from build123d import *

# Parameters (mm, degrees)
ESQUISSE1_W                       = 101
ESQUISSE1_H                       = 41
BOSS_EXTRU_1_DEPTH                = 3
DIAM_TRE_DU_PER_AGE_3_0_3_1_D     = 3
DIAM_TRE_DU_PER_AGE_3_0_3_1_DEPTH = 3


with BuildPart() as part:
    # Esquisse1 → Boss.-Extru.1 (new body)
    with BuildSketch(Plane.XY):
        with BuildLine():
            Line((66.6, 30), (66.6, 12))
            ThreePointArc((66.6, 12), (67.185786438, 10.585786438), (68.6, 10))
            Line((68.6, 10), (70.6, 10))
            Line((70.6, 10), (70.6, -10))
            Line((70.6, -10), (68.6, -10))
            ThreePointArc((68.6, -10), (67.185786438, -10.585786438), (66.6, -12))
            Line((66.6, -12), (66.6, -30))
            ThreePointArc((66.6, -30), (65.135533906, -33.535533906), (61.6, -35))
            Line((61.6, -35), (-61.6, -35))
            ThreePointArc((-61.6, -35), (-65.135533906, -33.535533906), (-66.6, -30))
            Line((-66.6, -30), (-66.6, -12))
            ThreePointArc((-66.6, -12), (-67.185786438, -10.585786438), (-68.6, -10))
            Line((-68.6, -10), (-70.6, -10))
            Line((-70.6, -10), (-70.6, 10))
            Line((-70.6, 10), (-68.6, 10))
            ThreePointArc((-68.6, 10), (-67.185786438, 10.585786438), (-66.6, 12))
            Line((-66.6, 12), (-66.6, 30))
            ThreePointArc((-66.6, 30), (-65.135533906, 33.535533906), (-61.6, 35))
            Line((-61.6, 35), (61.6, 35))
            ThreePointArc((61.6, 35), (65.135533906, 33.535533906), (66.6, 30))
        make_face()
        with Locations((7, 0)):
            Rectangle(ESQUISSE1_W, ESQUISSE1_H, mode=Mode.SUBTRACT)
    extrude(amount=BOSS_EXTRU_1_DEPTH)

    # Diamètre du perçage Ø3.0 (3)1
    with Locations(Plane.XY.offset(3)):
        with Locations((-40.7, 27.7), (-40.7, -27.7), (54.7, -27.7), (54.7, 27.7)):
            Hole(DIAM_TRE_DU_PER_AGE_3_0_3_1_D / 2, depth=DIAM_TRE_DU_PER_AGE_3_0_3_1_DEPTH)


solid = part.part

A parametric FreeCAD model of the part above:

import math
import FreeCAD as App
import Part
import Sketcher
from FreeCAD import Vector

doc = App.newDocument("Part")
body = doc.addObject("PartDesign::Body", "Body")

sketch1 = doc.addObject("Sketcher::SketchObject", "Sketch")
body.addObject(sketch1)
sketch1.AttachmentSupport = (doc.XY_Plane, [""])
sketch1.MapMode = "FlatFace"
sketch1.addGeometry([
    Part.LineSegment(Vector(66.6, 12, 0), Vector(66.6, 30, 0)),
    Part.ArcOfCircle(Part.Circle(Vector(61.6, 30, 0), Vector(0, 0, 1), 5), math.radians(0), math.radians(90)),
    Part.LineSegment(Vector(61.6, 35, 0), Vector(-61.6, 35, 0)),
    Part.ArcOfCircle(Part.Circle(Vector(-61.6, 30, 0), Vector(0, 0, 1), 5), math.radians(90), math.radians(180)),
    Part.LineSegment(Vector(-66.6, 30, 0), Vector(-66.6, 12, 0)),
    Part.ArcOfCircle(Part.Circle(Vector(-68.6, 12, 0), Vector(0, 0, 1), 2), math.radians(-90), math.radians(0)),
    Part.LineSegment(Vector(-68.6, 10, 0), Vector(-70.6, 10, 0)),
    Part.LineSegment(Vector(-70.6, 10, 0), Vector(-70.6, -10, 0)),
    Part.LineSegment(Vector(-70.6, -10, 0), Vector(-68.6, -10, 0)),
    Part.ArcOfCircle(Part.Circle(Vector(-68.6, -12, 0), Vector(0, 0, 1), 2), math.radians(0), math.radians(90)),
    Part.LineSegment(Vector(-66.6, -12, 0), Vector(-66.6, -30, 0)),
    Part.ArcOfCircle(Part.Circle(Vector(-61.6, -30, 0), Vector(0, 0, 1), 5), math.radians(180), math.radians(270)),
    Part.LineSegment(Vector(-61.6, -35, 0), Vector(61.6, -35, 0)),
    Part.ArcOfCircle(Part.Circle(Vector(61.6, -30, 0), Vector(0, 0, 1), 5), math.radians(-90), math.radians(0)),
    Part.LineSegment(Vector(66.6, -30, 0), Vector(66.6, -12, 0)),
    Part.ArcOfCircle(Part.Circle(Vector(68.6, -12, 0), Vector(0, 0, 1), 2), math.radians(90), math.radians(180)),
    Part.LineSegment(Vector(68.6, -10, 0), Vector(70.6, -10, 0)),
    Part.LineSegment(Vector(70.6, -10, 0), Vector(70.6, 10, 0)),
    Part.LineSegment(Vector(70.6, 10, 0), Vector(68.6, 10, 0)),
    Part.ArcOfCircle(Part.Circle(Vector(68.6, 12, 0), Vector(0, 0, 1), 2), math.radians(-180), math.radians(-90)),
    Part.LineSegment(Vector(-43.5, -20.5, 0), Vector(-43.5, 20.5, 0)),
    Part.LineSegment(Vector(-43.5, 20.5, 0), Vector(57.5, 20.5, 0)),
    Part.LineSegment(Vector(57.5, 20.5, 0), Vector(57.5, -20.5, 0)),
    Part.LineSegment(Vector(57.5, -20.5, 0), Vector(-43.5, -20.5, 0)),
], False)
sketch1.addConstraint([
    Sketcher.Constraint("Tangent", 0, 2, 1, 1),
    Sketcher.Constraint("Tangent", 1, 2, 2, 1),
    Sketcher.Constraint("Tangent", 2, 2, 3, 1),
    Sketcher.Constraint("Tangent", 3, 2, 4, 1),
    Sketcher.Constraint("Tangent", 4, 2, 5, 2),
    Sketcher.Constraint("Tangent", 5, 1, 6, 1),
    Sketcher.Constraint("Coincident", 6, 2, 7, 1),
    Sketcher.Constraint("Coincident", 7, 2, 8, 1),
    Sketcher.Constraint("Tangent", 8, 2, 9, 2),
    Sketcher.Constraint("Tangent", 9, 1, 10, 1),
    Sketcher.Constraint("Tangent", 10, 2, 11, 1),
    Sketcher.Constraint("Tangent", 11, 2, 12, 1),
    Sketcher.Constraint("Tangent", 12, 2, 13, 1),
    Sketcher.Constraint("Tangent", 13, 2, 14, 1),
    Sketcher.Constraint("Tangent", 14, 2, 15, 2),
    Sketcher.Constraint("Tangent", 15, 1, 16, 1),
    Sketcher.Constraint("Coincident", 16, 2, 17, 1),
    Sketcher.Constraint("Coincident", 17, 2, 18, 1),
    Sketcher.Constraint("Tangent", 18, 2, 19, 2),
    Sketcher.Constraint("Tangent", 19, 1, 0, 1),
    Sketcher.Constraint("Coincident", 20, 2, 21, 1),
    Sketcher.Constraint("Coincident", 21, 2, 22, 1),
    Sketcher.Constraint("Coincident", 22, 2, 23, 1),
    Sketcher.Constraint("Coincident", 23, 2, 20, 1),
    Sketcher.Constraint("Vertical", 0),
    Sketcher.Constraint("Horizontal", 2),
    Sketcher.Constraint("Vertical", 4),
    Sketcher.Constraint("Horizontal", 6),
    Sketcher.Constraint("Vertical", 7),
    Sketcher.Constraint("Horizontal", 8),
    Sketcher.Constraint("Vertical", 10),
    Sketcher.Constraint("Horizontal", 12),
    Sketcher.Constraint("Vertical", 14),
    Sketcher.Constraint("Horizontal", 16),
    Sketcher.Constraint("Vertical", 17),
    Sketcher.Constraint("Horizontal", 18),
    Sketcher.Constraint("Vertical", 20),
    Sketcher.Constraint("Horizontal", 21),
    Sketcher.Constraint("Vertical", 22),
    Sketcher.Constraint("Horizontal", 23),
    Sketcher.Constraint("Equal", 1, 3),
    Sketcher.Constraint("Equal", 5, 9),
    Sketcher.Constraint("Equal", 3, 11),
    Sketcher.Constraint("Equal", 11, 13),
    Sketcher.Constraint("Equal", 9, 15),
    Sketcher.Constraint("Equal", 15, 19),
    Sketcher.Constraint("Symmetric", 1, 3, 11, 3, -1, 1),
    Sketcher.Constraint("Symmetric", 5, 3, 15, 3, -1, 1),
    Sketcher.Constraint("Symmetric", 7, 2, 17, 2, -1, 1),
    Sketcher.Constraint("Symmetric", 9, 3, 15, 3, -2),
    Sketcher.Constraint("Radius", 1, 5.0),
    Sketcher.Constraint("Radius", 5, 2.0),
    Sketcher.Constraint("DistanceX", 6, 2, 6, 1, 2.0),
    Sketcher.Constraint("DistanceX", 21, 1, 21, 2, 101.0),
    Sketcher.Constraint("DistanceY", 0, 1, 0, 2, 18.0),
    Sketcher.Constraint("DistanceY", 7, 2, 7, 1, 20.0),
    Sketcher.Constraint("DistanceY", 20, 1, 20, 2, 41.0),
    Sketcher.Constraint("DistanceX", 2, 2, 2, 1, 123.2),
    Sketcher.Constraint("DistanceX", 20, 2, -1, 1, 43.5),
    Sketcher.Constraint("DistanceY", -1, 1, 20, 2, 20.5),
])
pad1 = doc.addObject("PartDesign::Pad", "Pad")
body.addObject(pad1)
pad1.Profile = sketch1
pad1.Length = 3

sketch2 = doc.addObject("Sketcher::SketchObject", "Sketch001")
body.addObject(sketch2)
sketch2.AttachmentSupport = (doc.XY_Plane, [""])
sketch2.MapMode = "FlatFace"
sketch2.AttachmentOffset = App.Placement(Vector(0, 0, 3), App.Rotation())
sketch2.addGeometry([
    Part.Circle(Vector(-40.7, 27.7, 0), Vector(0, 0, 1), 1.5),
    Part.Circle(Vector(-40.7, -27.7, 0), Vector(0, 0, 1), 1.5),
    Part.Circle(Vector(54.7, -27.7, 0), Vector(0, 0, 1), 1.5),
    Part.Circle(Vector(54.7, 27.7, 0), Vector(0, 0, 1), 1.5),
], False)
sketch2.addConstraint([
    Sketcher.Constraint("Equal", 0, 1),
    Sketcher.Constraint("Equal", 1, 2),
    Sketcher.Constraint("Equal", 2, 3),
    Sketcher.Constraint("Symmetric", 0, 3, 1, 3, -1),
    Sketcher.Constraint("Symmetric", 2, 3, 3, 3, -1),
    Sketcher.Constraint("Horizontal", 1, 3, 2, 3),
    Sketcher.Constraint("Diameter", 0, 3.0),
    Sketcher.Constraint("DistanceX", 0, 3, -1, 1, 40.7),
    Sketcher.Constraint("DistanceY", -1, 1, 0, 3, 27.7),
    Sketcher.Constraint("DistanceX", -1, 1, 2, 3, 54.7),
])
doc.recompute()
hole = doc.addObject("PartDesign::Hole", "Hole")
body.addObject(hole)
hole.Profile = sketch2
hole.ThreadType = "None"
hole.Diameter = 3
hole.DepthType = "Dimension"
hole.Depth = 3
hole.DrillPoint = "Flat"

doc.recompute()
